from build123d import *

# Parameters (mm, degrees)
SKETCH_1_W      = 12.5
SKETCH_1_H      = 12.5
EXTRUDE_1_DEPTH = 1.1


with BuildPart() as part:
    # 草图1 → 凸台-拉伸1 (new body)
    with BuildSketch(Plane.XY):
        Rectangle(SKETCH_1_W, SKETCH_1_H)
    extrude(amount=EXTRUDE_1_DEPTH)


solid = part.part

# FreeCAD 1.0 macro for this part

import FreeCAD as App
import Part
import Sketcher

V = App.Vector

doc = App.newDocument("Part")
params = doc.addObject("Spreadsheet::Sheet", "Params")
for row, (alias, value) in enumerate([
    ("sketch1_width", "12.5 mm"),
    ("pad1_length", "1.1 mm"),
], start=1):
    params.set(f"A{row}", alias)
    params.set(f"B{row}", "=" + value)
    params.setAlias(f"B{row}", alias)

body = doc.addObject("PartDesign::Body", "Body")

# Sketch on XY plane
sketch1 = doc.addObject("Sketcher::SketchObject", "Sketch")
body.addObject(sketch1)
sketch1.AttachmentSupport = (doc.XY_Plane, [""])
sketch1.MapMode = "FlatFace"
sketch1.addGeometry([
    Part.LineSegment(V(-6.25, 6.25, 0), V(-6.25, -6.25, 0)),
    Part.LineSegment(V(-6.25, -6.25, 0), V(6.25, -6.25, 0)),
    Part.LineSegment(V(6.25, -6.25, 0), V(6.25, 6.25, 0)),
    Part.LineSegment(V(6.25, 6.25, 0), V(-6.25, 6.25, 0)),
], False)
sketch1.addConstraint([
    Sketcher.Constraint("Coincident", 0, 2, 1, 1),
    Sketcher.Constraint("Coincident", 1, 2, 2, 1),
    Sketcher.Constraint("Coincident", 2, 2, 3, 1),
    Sketcher.Constraint("Coincident", 3, 2, 0, 1),
    Sketcher.Constraint("Vertical", 0),
    Sketcher.Constraint("Horizontal", 1),
    Sketcher.Constraint("Vertical", 2),
    Sketcher.Constraint("Horizontal", 3),
    Sketcher.Constraint("Symmetric", 0, 2, 2, 2, -1, 1),
    Sketcher.Constraint("Equal", 3, 0),
    Sketcher.Constraint("DistanceX", 1, 1, 1, 2, 12.5),
])
sketch1.setExpression("Constraints[10]", "Params.sketch1_width")
pad1 = doc.addObject("PartDesign::Pad", "Pad")
body.addObject(pad1)
pad1.Profile = sketch1
pad1.setExpression("Length", "Params.pad1_length")

doc.recompute()
